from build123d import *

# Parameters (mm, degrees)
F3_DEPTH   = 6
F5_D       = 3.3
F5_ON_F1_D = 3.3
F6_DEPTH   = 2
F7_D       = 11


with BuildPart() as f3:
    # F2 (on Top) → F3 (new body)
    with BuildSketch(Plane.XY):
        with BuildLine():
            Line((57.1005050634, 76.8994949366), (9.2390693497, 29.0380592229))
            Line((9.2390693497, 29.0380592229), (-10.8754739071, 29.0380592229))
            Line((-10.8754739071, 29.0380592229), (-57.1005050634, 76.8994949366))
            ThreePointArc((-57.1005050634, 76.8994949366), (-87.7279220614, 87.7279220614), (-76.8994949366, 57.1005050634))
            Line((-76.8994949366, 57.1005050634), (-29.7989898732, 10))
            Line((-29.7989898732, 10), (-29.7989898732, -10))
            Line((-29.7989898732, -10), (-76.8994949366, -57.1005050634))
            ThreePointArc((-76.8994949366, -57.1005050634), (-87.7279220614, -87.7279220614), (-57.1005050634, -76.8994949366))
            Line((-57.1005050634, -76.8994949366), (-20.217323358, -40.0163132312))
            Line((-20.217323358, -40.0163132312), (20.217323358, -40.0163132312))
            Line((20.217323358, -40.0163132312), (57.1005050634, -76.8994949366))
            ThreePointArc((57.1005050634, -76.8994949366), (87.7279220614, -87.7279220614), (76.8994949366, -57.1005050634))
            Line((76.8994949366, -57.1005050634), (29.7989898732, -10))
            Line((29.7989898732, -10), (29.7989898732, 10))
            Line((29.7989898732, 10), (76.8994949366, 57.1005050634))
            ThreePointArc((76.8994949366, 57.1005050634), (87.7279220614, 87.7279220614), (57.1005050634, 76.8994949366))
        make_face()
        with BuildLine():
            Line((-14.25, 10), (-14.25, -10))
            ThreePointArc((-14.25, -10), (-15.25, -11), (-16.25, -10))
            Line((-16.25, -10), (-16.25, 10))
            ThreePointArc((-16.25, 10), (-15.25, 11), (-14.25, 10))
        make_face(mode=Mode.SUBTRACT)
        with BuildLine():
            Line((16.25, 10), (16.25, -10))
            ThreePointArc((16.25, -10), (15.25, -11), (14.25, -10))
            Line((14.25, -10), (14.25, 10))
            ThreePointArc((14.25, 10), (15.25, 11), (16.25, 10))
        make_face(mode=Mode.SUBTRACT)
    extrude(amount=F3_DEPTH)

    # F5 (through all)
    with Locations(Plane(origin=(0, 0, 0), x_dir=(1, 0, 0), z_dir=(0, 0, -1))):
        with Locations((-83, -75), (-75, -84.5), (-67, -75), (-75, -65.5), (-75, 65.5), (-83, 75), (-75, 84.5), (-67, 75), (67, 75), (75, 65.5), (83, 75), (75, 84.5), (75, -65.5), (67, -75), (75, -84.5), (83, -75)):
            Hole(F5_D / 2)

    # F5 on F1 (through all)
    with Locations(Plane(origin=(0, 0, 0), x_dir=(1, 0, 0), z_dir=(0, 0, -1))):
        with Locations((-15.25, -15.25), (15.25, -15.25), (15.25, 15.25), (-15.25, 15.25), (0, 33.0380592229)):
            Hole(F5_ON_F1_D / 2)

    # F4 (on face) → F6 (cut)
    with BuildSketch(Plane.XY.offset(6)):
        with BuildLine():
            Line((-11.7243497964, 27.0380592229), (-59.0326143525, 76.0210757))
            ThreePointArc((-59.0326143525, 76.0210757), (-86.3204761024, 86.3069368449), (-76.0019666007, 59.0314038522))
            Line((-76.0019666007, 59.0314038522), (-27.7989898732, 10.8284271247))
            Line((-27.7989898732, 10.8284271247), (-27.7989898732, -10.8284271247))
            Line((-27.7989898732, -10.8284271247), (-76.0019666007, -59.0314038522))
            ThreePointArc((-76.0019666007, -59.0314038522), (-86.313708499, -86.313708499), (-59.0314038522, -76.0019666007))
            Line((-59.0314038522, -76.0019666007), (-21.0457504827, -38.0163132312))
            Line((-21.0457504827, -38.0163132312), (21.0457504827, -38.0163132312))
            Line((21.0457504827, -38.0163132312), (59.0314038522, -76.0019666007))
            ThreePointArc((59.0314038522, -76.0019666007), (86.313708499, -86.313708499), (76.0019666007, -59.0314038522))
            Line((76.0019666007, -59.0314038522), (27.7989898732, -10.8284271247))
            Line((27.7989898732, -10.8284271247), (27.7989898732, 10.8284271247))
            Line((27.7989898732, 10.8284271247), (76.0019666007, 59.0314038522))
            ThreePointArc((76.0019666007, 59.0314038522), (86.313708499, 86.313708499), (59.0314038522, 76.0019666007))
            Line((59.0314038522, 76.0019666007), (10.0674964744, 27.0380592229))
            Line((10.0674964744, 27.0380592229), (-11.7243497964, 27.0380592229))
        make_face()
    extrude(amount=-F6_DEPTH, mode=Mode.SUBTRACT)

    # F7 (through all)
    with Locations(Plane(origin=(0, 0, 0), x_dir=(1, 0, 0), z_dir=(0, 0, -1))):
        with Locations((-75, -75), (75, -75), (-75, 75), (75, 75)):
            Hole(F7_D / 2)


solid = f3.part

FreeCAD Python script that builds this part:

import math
import FreeCAD as App
import Part
import Sketcher

doc = App.newDocument("Part")
body = doc.addObject("PartDesign::Body", "Body")

sketch1 = body.newObject("Sketcher::SketchObject", "Sketch")
sketch1.AttachmentSupport = (doc.getObject("XY_Plane"), [""])
sketch1.MapMode = "FlatFace"
sketch1.addGeometry([
    Part.LineSegment(App.Vector(57.1, 76.9, 0), App.Vector(9.2, 29, 0)),
    Part.LineSegment(App.Vector(9.2, 29, 0), App.Vector(-10.9, 29, 0)),
    Part.LineSegment(App.Vector(-10.9, 29, 0), App.Vector(-57.1, 76.9, 0)),
    Part.ArcOfCircle(Part.Circle(App.Vector(-75, 75, 0), App.Vector(0, 0, 1), 18), math.radians(6), math.radians(264)),
    Part.LineSegment(App.Vector(-76.9, 57.1, 0), App.Vector(-29.8, 10, 0)),
    Part.LineSegment(App.Vector(-29.8, 10, 0), App.Vector(-29.8, -10, 0)),
    Part.LineSegment(App.Vector(-29.8, -10, 0), App.Vector(-76.9, -57.1, 0)),
    Part.ArcOfCircle(Part.Circle(App.Vector(-75, -75, 0), App.Vector(0, 0, 1), 18), math.radians(96), math.radians(354)),
    Part.LineSegment(App.Vector(-57.1, -76.9, 0), App.Vector(-20.2, -40, 0)),
    Part.LineSegment(App.Vector(-20.2, -40, 0), App.Vector(20.2, -40, 0)),
    Part.LineSegment(App.Vector(20.2, -40, 0), App.Vector(57.1, -76.9, 0)),
    Part.ArcOfCircle(Part.Circle(App.Vector(75, -75, 0), App.Vector(0, 0, 1), 18), math.radians(-174), math.radians(84)),
    Part.LineSegment(App.Vector(76.9, -57.1, 0), App.Vector(29.8, -10, 0)),
    Part.LineSegment(App.Vector(29.8, -10, 0), App.Vector(29.8, 10, 0)),
    Part.LineSegment(App.Vector(29.8, 10, 0), App.Vector(76.9, 57.1, 0)),
    Part.ArcOfCircle(Part.Circle(App.Vector(75, 75, 0), App.Vector(0, 0, 1), 18), math.radians(-84), math.radians(174)),
    Part.ArcOfCircle(Part.Circle(App.Vector(-15.2, 10, 0), App.Vector(0, 0, 1), 1), math.radians(0), math.radians(180)),
    Part.LineSegment(App.Vector(-14.2, 10, 0), App.Vector(-14.2, -10, 0)),
    Part.ArcOfCircle(Part.Circle(App.Vector(-15.2, -10, 0), App.Vector(0, 0, 1), 1), math.radians(180), math.radians(360)),
    Part.LineSegment(App.Vector(-16.2, -10, 0), App.Vector(-16.2, 10, 0)),
    Part.ArcOfCircle(Part.Circle(App.Vector(15.2, 10, 0), App.Vector(0, 0, 1), 1), math.radians(0), math.radians(180)),
    Part.LineSegment(App.Vector(16.2, 10, 0), App.Vector(16.2, -10, 0)),
    Part.ArcOfCircle(Part.Circle(App.Vector(15.2, -10, 0), App.Vector(0, 0, 1), 1), math.radians(180), math.radians(360)),
    Part.LineSegment(App.Vector(14.2, -10, 0), App.Vector(14.2, 10, 0)),
], False)
sketch1.addConstraint([
    Sketcher.Constraint("Coincident", 0, 2, 1, 1),
    Sketcher.Constraint("Coincident", 1, 2, 2, 1),
    Sketcher.Constraint("Coincident", 2, 2, 3, 1),
    Sketcher.Constraint("Coincident", 3, 2, 4, 1),
    Sketcher.Constraint("Coincident", 4, 2, 5, 1),
    Sketcher.Constraint("Coincident", 5, 2, 6, 1),
    Sketcher.Constraint("Coincident", 6, 2, 7, 1),
    Sketcher.Constraint("Coincident", 7, 2, 8, 1),
    Sketcher.Constraint("Coincident", 8, 2, 9, 1),
    Sketcher.Constraint("Coincident", 9, 2, 10, 1),
    Sketcher.Constraint("Coincident", 10, 2, 11, 1),
    Sketcher.Constraint("Coincident", 11, 2, 12, 1),
    Sketcher.Constraint("Coincident", 12, 2, 13, 1),
    Sketcher.Constraint("Coincident", 13, 2, 14, 1),
    Sketcher.Constraint("Coincident", 14, 2, 15, 1),
    Sketcher.Constraint("Coincident", 15, 2, 0, 1),
    Sketcher.Constraint("Tangent", 16, 1, 17, 1),
    Sketcher.Constraint("Tangent", 17, 2, 18, 2),
    Sketcher.Constraint("Tangent", 18, 1, 19, 1),
    Sketcher.Constraint("Tangent", 19, 2, 16, 2),
    Sketcher.Constraint("Tangent", 20, 1, 21, 1),
    Sketcher.Constraint("Tangent", 21, 2, 22, 2),
    Sketcher.Constraint("Tangent", 22, 1, 23, 1),
    Sketcher.Constraint("Tangent", 23, 2, 20, 2),
    Sketcher.Constraint("Horizontal", 1),
    Sketcher.Constraint("Vertical", 5),
    Sketcher.Constraint("Horizontal", 9),
    Sketcher.Constraint("Vertical", 13),
    Sketcher.Constraint("Vertical", 17),
    Sketcher.Constraint("Vertical", 19),
    Sketcher.Constraint("Vertical", 21),
    Sketcher.Constraint("Vertical", 23),
    Sketcher.Constraint("Equal", 3, 7),
    Sketcher.Constraint("Equal", 7, 11),
    Sketcher.Constraint("Equal", 11, 15),
    Sketcher.Constraint("Equal", 18, 20),
    Sketcher.Constraint("Symmetric", 3, 3, 11, 3, -1, 1),
    Sketcher.Constraint("Symmetric", 7, 3, 15, 3, -1, 1),
    Sketcher.Constraint("Symmetric", 18, 3, 20, 3, -1, 1),
    Sketcher.Constraint("Symmetric", 4, 2, 12, 2, -1, 1),
    Sketcher.Constraint("Symmetric", 7, 3, 11, 3, -2),
    Sketcher.Constraint("Perpendicular", 0, 4),
    Sketcher.Constraint("Perpendicular", 4, 6),
    Sketcher.Constraint("Parallel", 6, 8),
    Sketcher.Constraint("Perpendicular", 8, 10),
    Sketcher.Constraint("Parallel", 10, 12),
    Sketcher.Constraint("Perpendicular", 12, 14),
    Sketcher.Constraint("Horizontal", 16, 3, 20, 3),
    Sketcher.Constraint("Horizontal", 18, 3, 22, 3),
    Sketcher.Constraint("Horizontal", 20, 3, 4, 2),
    Sketcher.Constraint("Horizontal", 22, 3, 5, 2),
    Sketcher.Constraint("Horizontal", 7, 2, 10, 2),
    Sketcher.Constraint("Horizontal", 6, 2, 11, 2),
    Sketcher.Constraint("Horizontal", 4, 2, 13, 2),
    Sketcher.Constraint("Horizontal", 2, 2, 15, 2),
    Sketcher.Constraint("Vertical", 2, 2, 7, 2),
    Sketcher.Constraint("Radius", 3, 18.0),
    Sketcher.Constraint("Radius", 16, 1.0),
    Sketcher.Constraint("DistanceY", 5, 2, 5, 1, 20.0),
    Sketcher.Constraint("DistanceX", 3, 3, -1, 1, 75.0),
    Sketcher.Constraint("DistanceY", -1, 1, 3, 3, 75.0),
    Sketcher.Constraint("DistanceX", 16, 3, 20, 3, 30.5),
    Sketcher.Constraint("Distance", 0, 67.686292),
    Sketcher.Constraint("Distance", 2, 66.539241),
    Sketcher.Constraint("DistanceX", 1, 2, 1, 1, 20.114543),
    Sketcher.Constraint("DistanceX", 9, 1, 9, 2, 40.434647),
    Sketcher.Constraint("DistanceX", 4, 2, -1, 1, 29.79899),
])
pad1 = body.newObject("PartDesign::Pad", "Pad")
pad1.Profile = sketch1
pad1.Length = 6

sketch2 = body.newObject("Sketcher::SketchObject", "Sketch001")
sketch2.AttachmentSupport = (doc.getObject("XY_Plane"), [""])
sketch2.MapMode = "FlatFace"
sketch2.addGeometry([
    Part.Circle(App.Vector(-83, 75, 0), App.Vector(0, 0, 1), 1.6),
    Part.Circle(App.Vector(-75, 84.5, 0), App.Vector(0, 0, 1), 1.6),
    Part.Circle(App.Vector(-67, 75, 0), App.Vector(0, 0, 1), 1.6),
    Part.Circle(App.Vector(-75, 65.5, 0), App.Vector(0, 0, 1), 1.6),
    Part.Circle(App.Vector(-75, -65.5, 0), App.Vector(0, 0, 1), 1.6),
    Part.Circle(App.Vector(-83, -75, 0), App.Vector(0, 0, 1), 1.6),
    Part.Circle(App.Vector(-75, -84.5, 0), App.Vector(0, 0, 1), 1.6),
    Part.Circle(App.Vector(-67, -75, 0), App.Vector(0, 0, 1), 1.6),
    Part.Circle(App.Vector(67, -75, 0), App.Vector(0, 0, 1), 1.6),
    Part.Circle(App.Vector(75, -65.5, 0), App.Vector(0, 0, 1), 1.6),
    Part.Circle(App.Vector(83, -75, 0), App.Vector(0, 0, 1), 1.6),
    Part.Circle(App.Vector(75, -84.5, 0), App.Vector(0, 0, 1), 1.6),
    Part.Circle(App.Vector(75, 65.5, 0), App.Vector(0, 0, 1), 1.6),
    Part.Circle(App.Vector(67, 75, 0), App.Vector(0, 0, 1), 1.6),
    Part.Circle(App.Vector(75, 84.5, 0), App.Vector(0, 0, 1), 1.6),
    Part.Circle(App.Vector(83, 75, 0), App.Vector(0, 0, 1), 1.6),
], False)
sketch2.addConstraint([
    Sketcher.Constraint("Equal", 0, 1),
    Sketcher.Constraint("Equal", 1, 2),
    Sketcher.Constraint("Equal", 2, 3),
    Sketcher.Constraint("Equal", 3, 4),
    Sketcher.Constraint("Equal", 4, 5),
    Sketcher.Constraint("Equal", 5, 6),
    Sketcher.Constraint("Equal", 6, 7),
    Sketcher.Constraint("Equal", 7, 8),
    Sketcher.Constraint("Equal", 8, 9),
    Sketcher.Constraint("Equal", 9, 10),
    Sketcher.Constraint("Equal", 10, 11),
    Sketcher.Constraint("Equal", 11, 12),
    Sketcher.Constraint("Equal", 12, 13),
    Sketcher.Constraint("Equal", 13, 14),
    Sketcher.Constraint("Equal", 14, 15),
    Sketcher.Constraint("Symmetric", 2, 3, 8, 3, -1, 1),
    Sketcher.Constraint("Symmetric", 3, 3, 9, 3, -1, 1),
    Sketcher.Constraint("Symmetric", 0, 3, 10, 3, -1, 1),
    Sketcher.Constraint("Symmetric", 1, 3, 11, 3, -1, 1),
    Sketcher.Constraint("Symmetric", 4, 3, 12, 3, -1, 1),
    Sketcher.Constraint("Symmetric", 7, 3, 13, 3, -1, 1),
    Sketcher.Constraint("Symmetric", 6, 3, 14, 3, -1, 1),
    Sketcher.Constraint("Symmetric", 5, 3, 15, 3, -1, 1),
    Sketcher.Constraint("Symmetric", 7, 3, 8, 3, -2),
    Sketcher.Constraint("Symmetric", 4, 3, 9, 3, -2),
    Sketcher.Constraint("Symmetric", 5, 3, 10, 3, -2),
    Sketcher.Constraint("Symmetric", 6, 3, 11, 3, -2),
    Sketcher.Constraint("Horizontal", 0, 3, 2, 3),
    Sketcher.Constraint("Vertical", 1, 3, 3, 3),
    Sketcher.Constraint("Diameter", 0, 3.3),
    Sketcher.Constraint("DistanceX", 0, 3, -1, 1, 83.0),
    Sketcher.Constraint("DistanceY", -1, 1, 0, 3, 75.0),
    Sketcher.Constraint("DistanceX", 1, 3, -1, 1, 75.0),
    Sketcher.Constraint("DistanceX", 2, 3, -1, 1, 67.0),
    Sketcher.Constraint("DistanceY", 3, 3, 1, 3, 19.0),
    Sketcher.Constraint("DistanceY", 4, 3, 3, 3, 131.0),
])
doc.recompute()
hole = body.newObject("PartDesign::Hole", "Hole")
hole.Profile = sketch2
hole.ThreadType = "None"
hole.Diameter = 3.3
hole.DepthType = "ThroughAll"
hole.Reversed = True

sketch3 = body.newObject("Sketcher::SketchObject", "Sketch002")
sketch3.AttachmentSupport = (doc.getObject("XY_Plane"), [""])
sketch3.MapMode = "FlatFace"
sketch3.addGeometry([
    Part.Circle(App.Vector(-15.2, 15.2, 0), App.Vector(0, 0, 1), 1.6),
    Part.Circle(App.Vector(15.2, 15.2, 0), App.Vector(0, 0, 1), 1.6),
    Part.Circle(App.Vector(15.2, -15.2, 0), App.Vector(0, 0, 1), 1.6),
    Part.Circle(App.Vector(-15.2, -15.2, 0), App.Vector(0, 0, 1), 1.6),
    Part.Circle(App.Vector(0, -33, 0), App.Vector(0, 0, 1), 1.6),
], False)
sketch3.addConstraint([
    Sketcher.Constraint("Equal", 0, 1),
    Sketcher.Constraint("Equal", 1, 2),
    Sketcher.Constraint("Equal", 2, 3),
    Sketcher.Constraint("Equal", 3, 4),
    Sketcher.Constraint("Symmetric", 0, 3, 2, 3, -1, 1),
    Sketcher.Constraint("Symmetric", 1, 3, 3, 3, -1, 1),
    Sketcher.Constraint("Symmetric", 0, 3, 1, 3, -2),
    Sketcher.Constraint("PointOnObject", 4, 3, -2),
    Sketcher.Constraint("Diameter", 0, 3.3),
    Sketcher.Constraint("DistanceX", 0, 3, 1, 3, 30.5),
    Sketcher.Constraint("DistanceY", 2, 3, 1, 3, 30.5),
    Sketcher.Constraint("DistanceY", 4, 3, -1, 1, 33.038059),
])
doc.recompute()
hole2 = body.newObject("PartDesign::Hole", "Hole001")
hole2.Profile = sketch3
hole2.ThreadType = "None"
hole2.Diameter = 3.3
hole2.DepthType = "ThroughAll"
hole2.Reversed = True

sketch4 = body.newObject("Sketcher::SketchObject", "Sketch003")
sketch4.AttachmentSupport = (doc.getObject("XY_Plane"), [""])
sketch4.MapMode = "FlatFace"
sketch4.AttachmentOffset = App.Placement(App.Vector(0, 0, 6), App.Rotation())
sketch4.addGeometry([
    Part.LineSegment(App.Vector(-12, 27, 0), App.Vector(-59, 76, 0)),
    Part.ArcOfCircle(Part.Circle(App.Vector(-75, 75, 0), App.Vector(0, 0, 1), 16), math.radians(4), math.radians(266)),
    Part.LineSegment(App.Vector(-76, 59, 0), App.Vector(-28, 11, 0)),
    Part.LineSegment(App.Vector(-28, 11, 0), App.Vector(-28, -11, 0)),
    Part.LineSegment(App.Vector(-28, -11, 0), App.Vector(-76, -59, 0)),
    Part.ArcOfCircle(Part.Circle(App.Vector(-75, -75, 0), App.Vector(0, 0, 1), 16), math.radians(94), math.radians(356)),
    Part.LineSegment(App.Vector(-59, -76, 0), App.Vector(-21, -38, 0)),
    Part.LineSegment(App.Vector(-21, -38, 0), App.Vector(21, -38, 0)),
    Part.LineSegment(App.Vector(21, -38, 0), App.Vector(59, -76, 0)),
    Part.ArcOfCircle(Part.Circle(App.Vector(75, -75, 0), App.Vector(0, 0, 1), 16), math.radians(-176), math.radians(86)),
    Part.LineSegment(App.Vector(76, -59, 0), App.Vector(28, -11, 0)),
    Part.LineSegment(App.Vector(28, -11, 0), App.Vector(28, 11, 0)),
    Part.LineSegment(App.Vector(28, 11, 0), App.Vector(76, 59, 0)),
    Part.ArcOfCircle(Part.Circle(App.Vector(75, 75, 0), App.Vector(0, 0, 1), 16), math.radians(-86), math.radians(176)),
    Part.LineSegment(App.Vector(59, 76, 0), App.Vector(10, 27, 0)),
    Part.LineSegment(App.Vector(10, 27, 0), App.Vector(-12, 27, 0)),
], False)
sketch4.addConstraint([
    Sketcher.Constraint("Coincident", 0, 2, 1, 1),
    Sketcher.Constraint("Coincident", 1, 2, 2, 1),
    Sketcher.Constraint("Coincident", 2, 2, 3, 1),
    Sketcher.Constraint("Coincident", 3, 2, 4, 1),
    Sketcher.Constraint("Coincident", 4, 2, 5, 1),
    Sketcher.Constraint("Coincident", 5, 2, 6, 1),
    Sketcher.Constraint("Coincident", 6, 2, 7, 1),
    Sketcher.Constraint("Coincident", 7, 2, 8, 1),
    Sketcher.Constraint("Coincident", 8, 2, 9, 1),
    Sketcher.Constraint("Coincident", 9, 2, 10, 1),
    Sketcher.Constraint("Coincident", 10, 2, 11, 1),
    Sketcher.Constraint("Coincident", 11, 2, 12, 1),
    Sketcher.Constraint("Coincident", 12, 2, 13, 1),
    Sketcher.Constraint("Coincident", 13, 2, 14, 1),
    Sketcher.Constraint("Coincident", 14, 2, 15, 1),
    Sketcher.Constraint("Coincident", 15, 2, 0, 1),
    Sketcher.Constraint("Vertical", 3),
    Sketcher.Constraint("Horizontal", 7),
    Sketcher.Constraint("Vertical", 11),
    Sketcher.Constraint("Horizontal", 15),
    Sketcher.Constraint("Equal", 1, 5),
    Sketcher.Constraint("Equal", 5, 9),
    Sketcher.Constraint("Equal", 9, 13),
    Sketcher.Constraint("Symmetric", 1, 3, 9, 3, -1, 1),
    Sketcher.Constraint("Symmetric", 5, 3, 13, 3, -1, 1),
    Sketcher.Constraint("Symmetric", 2, 2, 10, 2, -1, 1),
    Sketcher.Constraint("Symmetric", 5, 3, 9, 3, -2),
    Sketcher.Constraint("Perpendicular", 2, 4),
    Sketcher.Constraint("Parallel", 4, 6),
    Sketcher.Constraint("Perpendicular", 6, 8),
    Sketcher.Constraint("Parallel", 8, 10),
    Sketcher.Constraint("Perpendicular", 10, 12),
    Sketcher.Constraint("Parallel", 12, 14),
    Sketcher.Constraint("Horizontal", 5, 2, 8, 2),
    Sketcher.Constraint("Horizontal", 4, 2, 9, 2),
    Sketcher.Constraint("Horizontal", 3, 2, 10, 2),
    Sketcher.Constraint("Horizontal", 2, 2, 11, 2),
    Sketcher.Constraint("Vertical", 8, 2, 13, 2),
    Sketcher.Constraint("Radius", 1, 16.0),
    Sketcher.Constraint("DistanceX", 1, 3, -1, 1, 75.0),
    Sketcher.Constraint("DistanceY", -1, 1, 1, 3, 75.0),
    Sketcher.Constraint("DistanceX", 7, 1, 7, 2, 42.091501),
    Sketcher.Constraint("Distance", 14, 69.245422),
    Sketcher.Constraint("DistanceX", 15, 2, 15, 1, 21.791846),
    Sketcher.Constraint("DistanceY", 3, 2, 3, 1, 21.656854),
    Sketcher.Constraint("DistanceX", 2, 2, -1, 1, 27.79899),
    Sketcher.Constraint("DistanceY", -1, 1, 14, 2, 27.038059),
    Sketcher.Constraint("DistanceY", 1, 2, 0, 2, 16.989672),
])
pocket1 = body.newObject("PartDesign::Pocket", "Pocket")
pocket1.Profile = sketch4
pocket1.Length = 2

sketch5 = body.newObject("Sketcher::SketchObject", "Sketch004")
sketch5.AttachmentSupport = (doc.getObject("XY_Plane"), [""])
sketch5.MapMode = "FlatFace"
sketch5.addGeometry([
    Part.Circle(App.Vector(-75, 75, 0), App.Vector(0, 0, 1), 6),
    Part.Circle(App.Vector(75, 75, 0), App.Vector(0, 0, 1), 6),
    Part.Circle(App.Vector(-75, -75, 0), App.Vector(0, 0, 1), 6),
    Part.Circle(App.Vector(75, -75, 0), App.Vector(0, 0, 1), 6),
], False)
sketch5.addConstraint([
    Sketcher.Constraint("Equal", 0, 1),
    Sketcher.Constraint("Equal", 1, 2),
    Sketcher.Constraint("Equal", 2, 3),
    Sketcher.Constraint("Symmetric", 1, 3, 2, 3, -1, 1),
    Sketcher.Constraint("Symmetric", 0, 3, 3, 3, -1, 1),
    Sketcher.Constraint("Symmetric", 0, 3, 1, 3, -2),
    Sketcher.Constraint("Diameter", 0, 11.0),
    Sketcher.Constraint("DistanceX", 0, 3, -1, 1, 75.0),
    Sketcher.Constraint("DistanceY", -1, 1, 0, 3, 75.0),
])
doc.recompute()
hole3 = body.newObject("PartDesign::Hole", "Hole002")
hole3.Profile = sketch5
hole3.ThreadType = "None"
hole3.Diameter = 11
hole3.DepthType = "ThroughAll"
hole3.Reversed = True

doc.recompute()
